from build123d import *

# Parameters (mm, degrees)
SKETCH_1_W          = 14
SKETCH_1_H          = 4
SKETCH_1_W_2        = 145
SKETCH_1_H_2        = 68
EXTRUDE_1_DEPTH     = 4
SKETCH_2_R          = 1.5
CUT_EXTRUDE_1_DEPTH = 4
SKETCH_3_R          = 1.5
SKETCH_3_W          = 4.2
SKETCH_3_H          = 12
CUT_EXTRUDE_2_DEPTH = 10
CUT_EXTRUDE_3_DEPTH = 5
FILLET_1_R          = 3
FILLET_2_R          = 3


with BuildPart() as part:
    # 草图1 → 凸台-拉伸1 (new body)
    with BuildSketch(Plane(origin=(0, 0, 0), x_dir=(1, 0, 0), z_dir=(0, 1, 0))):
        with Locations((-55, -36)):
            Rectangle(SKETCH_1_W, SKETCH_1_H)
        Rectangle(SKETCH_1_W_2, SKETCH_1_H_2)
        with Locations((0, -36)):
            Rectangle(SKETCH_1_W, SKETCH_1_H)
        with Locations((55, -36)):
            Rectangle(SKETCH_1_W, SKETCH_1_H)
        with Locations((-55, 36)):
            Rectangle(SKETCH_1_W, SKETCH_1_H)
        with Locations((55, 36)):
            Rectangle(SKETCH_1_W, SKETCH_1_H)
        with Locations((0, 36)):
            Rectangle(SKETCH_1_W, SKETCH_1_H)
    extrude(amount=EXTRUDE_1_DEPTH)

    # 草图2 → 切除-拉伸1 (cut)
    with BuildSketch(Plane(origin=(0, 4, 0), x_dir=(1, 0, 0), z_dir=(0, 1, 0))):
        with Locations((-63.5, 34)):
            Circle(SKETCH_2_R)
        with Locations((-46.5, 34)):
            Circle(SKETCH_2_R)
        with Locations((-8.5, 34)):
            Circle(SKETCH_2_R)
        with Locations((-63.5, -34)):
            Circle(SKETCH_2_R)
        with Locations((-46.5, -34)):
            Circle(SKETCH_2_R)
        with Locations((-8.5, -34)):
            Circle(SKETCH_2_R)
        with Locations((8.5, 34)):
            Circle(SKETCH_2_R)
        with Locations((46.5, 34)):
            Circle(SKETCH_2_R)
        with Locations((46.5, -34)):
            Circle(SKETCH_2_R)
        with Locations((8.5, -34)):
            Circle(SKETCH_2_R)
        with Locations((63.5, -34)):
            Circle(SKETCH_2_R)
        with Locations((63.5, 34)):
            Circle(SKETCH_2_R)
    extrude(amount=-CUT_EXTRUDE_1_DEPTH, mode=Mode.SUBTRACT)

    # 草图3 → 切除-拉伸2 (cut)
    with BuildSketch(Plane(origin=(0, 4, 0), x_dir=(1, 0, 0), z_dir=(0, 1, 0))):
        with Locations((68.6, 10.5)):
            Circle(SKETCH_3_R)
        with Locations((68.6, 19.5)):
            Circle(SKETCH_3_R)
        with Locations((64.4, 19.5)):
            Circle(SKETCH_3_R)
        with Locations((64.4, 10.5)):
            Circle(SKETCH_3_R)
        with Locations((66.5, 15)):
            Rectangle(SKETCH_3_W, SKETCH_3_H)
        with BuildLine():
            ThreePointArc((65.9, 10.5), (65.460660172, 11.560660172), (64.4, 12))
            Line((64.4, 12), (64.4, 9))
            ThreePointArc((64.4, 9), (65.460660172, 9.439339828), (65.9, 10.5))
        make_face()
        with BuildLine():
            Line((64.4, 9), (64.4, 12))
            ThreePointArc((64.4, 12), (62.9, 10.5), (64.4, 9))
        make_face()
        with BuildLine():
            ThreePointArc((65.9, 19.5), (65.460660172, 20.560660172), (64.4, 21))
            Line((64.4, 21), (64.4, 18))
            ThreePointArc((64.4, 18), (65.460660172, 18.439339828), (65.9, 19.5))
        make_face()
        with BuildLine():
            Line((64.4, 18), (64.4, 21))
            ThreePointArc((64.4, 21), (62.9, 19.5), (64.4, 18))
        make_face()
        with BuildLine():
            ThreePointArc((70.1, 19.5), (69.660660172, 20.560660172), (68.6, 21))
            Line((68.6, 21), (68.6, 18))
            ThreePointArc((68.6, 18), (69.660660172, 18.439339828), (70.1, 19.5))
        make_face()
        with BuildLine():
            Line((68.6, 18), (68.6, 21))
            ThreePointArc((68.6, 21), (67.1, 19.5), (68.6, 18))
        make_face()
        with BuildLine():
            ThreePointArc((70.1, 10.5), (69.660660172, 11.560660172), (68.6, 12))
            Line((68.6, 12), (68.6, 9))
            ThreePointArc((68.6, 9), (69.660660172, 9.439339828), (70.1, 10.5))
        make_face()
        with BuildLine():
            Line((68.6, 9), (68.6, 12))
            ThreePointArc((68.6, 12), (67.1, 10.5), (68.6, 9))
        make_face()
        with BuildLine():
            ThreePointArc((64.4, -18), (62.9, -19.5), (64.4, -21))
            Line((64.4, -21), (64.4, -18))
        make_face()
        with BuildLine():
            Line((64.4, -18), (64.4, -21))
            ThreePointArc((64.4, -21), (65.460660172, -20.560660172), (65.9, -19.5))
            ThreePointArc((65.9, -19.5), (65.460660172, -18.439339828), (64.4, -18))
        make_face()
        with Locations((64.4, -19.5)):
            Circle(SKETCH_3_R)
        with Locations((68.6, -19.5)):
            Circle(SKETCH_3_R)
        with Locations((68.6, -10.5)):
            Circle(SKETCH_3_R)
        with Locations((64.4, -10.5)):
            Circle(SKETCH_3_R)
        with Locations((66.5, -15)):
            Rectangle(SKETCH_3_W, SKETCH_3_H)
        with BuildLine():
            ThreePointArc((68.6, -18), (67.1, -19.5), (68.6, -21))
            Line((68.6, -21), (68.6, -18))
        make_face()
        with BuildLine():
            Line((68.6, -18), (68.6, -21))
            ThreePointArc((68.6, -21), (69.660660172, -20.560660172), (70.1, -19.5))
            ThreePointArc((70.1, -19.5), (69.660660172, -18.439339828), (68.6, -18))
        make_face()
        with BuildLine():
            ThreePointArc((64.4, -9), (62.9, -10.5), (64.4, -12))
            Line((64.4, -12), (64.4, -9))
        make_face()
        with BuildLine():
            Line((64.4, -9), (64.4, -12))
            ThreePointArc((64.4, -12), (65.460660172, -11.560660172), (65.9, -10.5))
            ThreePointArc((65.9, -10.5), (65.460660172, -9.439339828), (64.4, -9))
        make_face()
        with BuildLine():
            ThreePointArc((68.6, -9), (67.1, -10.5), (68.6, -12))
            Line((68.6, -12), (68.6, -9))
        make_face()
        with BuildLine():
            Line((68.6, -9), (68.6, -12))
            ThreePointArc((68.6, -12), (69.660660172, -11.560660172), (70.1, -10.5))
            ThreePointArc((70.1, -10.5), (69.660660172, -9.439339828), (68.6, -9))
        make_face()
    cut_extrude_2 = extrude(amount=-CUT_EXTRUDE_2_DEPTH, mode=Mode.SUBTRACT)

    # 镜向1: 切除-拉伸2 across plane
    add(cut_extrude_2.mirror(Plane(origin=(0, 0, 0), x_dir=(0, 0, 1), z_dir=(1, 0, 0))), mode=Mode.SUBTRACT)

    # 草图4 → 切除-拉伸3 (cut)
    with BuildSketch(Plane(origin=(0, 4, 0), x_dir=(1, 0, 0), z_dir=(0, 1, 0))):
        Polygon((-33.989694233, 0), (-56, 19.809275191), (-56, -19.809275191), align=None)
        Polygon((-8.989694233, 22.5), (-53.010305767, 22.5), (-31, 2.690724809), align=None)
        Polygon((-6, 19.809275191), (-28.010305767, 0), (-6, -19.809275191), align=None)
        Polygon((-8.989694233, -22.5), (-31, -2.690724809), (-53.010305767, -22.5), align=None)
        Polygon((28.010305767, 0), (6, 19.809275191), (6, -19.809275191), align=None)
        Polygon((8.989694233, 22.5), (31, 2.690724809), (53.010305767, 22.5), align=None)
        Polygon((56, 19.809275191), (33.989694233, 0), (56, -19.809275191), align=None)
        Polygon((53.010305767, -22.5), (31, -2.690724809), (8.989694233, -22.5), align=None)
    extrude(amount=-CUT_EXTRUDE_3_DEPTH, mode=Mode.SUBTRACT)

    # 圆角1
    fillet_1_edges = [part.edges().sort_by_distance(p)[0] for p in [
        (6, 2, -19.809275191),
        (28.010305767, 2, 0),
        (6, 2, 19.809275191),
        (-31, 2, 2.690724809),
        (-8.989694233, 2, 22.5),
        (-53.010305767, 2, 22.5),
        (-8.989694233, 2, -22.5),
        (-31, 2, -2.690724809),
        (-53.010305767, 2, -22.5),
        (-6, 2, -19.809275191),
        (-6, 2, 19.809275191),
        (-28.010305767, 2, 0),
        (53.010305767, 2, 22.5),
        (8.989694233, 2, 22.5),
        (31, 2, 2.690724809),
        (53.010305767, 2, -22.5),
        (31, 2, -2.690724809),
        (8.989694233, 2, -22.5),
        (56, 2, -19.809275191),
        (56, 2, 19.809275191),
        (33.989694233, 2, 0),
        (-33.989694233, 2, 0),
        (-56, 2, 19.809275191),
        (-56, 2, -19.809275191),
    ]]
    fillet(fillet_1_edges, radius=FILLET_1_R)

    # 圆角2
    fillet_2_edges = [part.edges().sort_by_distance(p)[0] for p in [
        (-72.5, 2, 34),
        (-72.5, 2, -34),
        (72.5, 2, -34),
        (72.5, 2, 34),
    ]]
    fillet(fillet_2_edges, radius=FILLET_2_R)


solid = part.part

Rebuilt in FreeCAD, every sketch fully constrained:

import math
import FreeCAD as App
import Part
import Sketcher

V = App.Vector


def edges_at(feature, points):
    """Names of the edges that pass closest to the given points."""
    edges = feature.Shape.Edges
    near = lambda p: min(range(len(edges)), key=lambda i: edges[i].distToShape(Part.Vertex(*p))[0])
    return sorted({f"Edge{near(p) + 1}" for p in points})


def add_polygon(sketch, points):
    """Adds a closed chain of lines whose ends are joined by coincident constraints."""
    first, n = sketch.GeometryCount, len(points)
    for a, b in zip(points, points[1:] + points[:1]):
        sketch.addGeometry(Part.LineSegment(App.Vector(*a, 0), App.Vector(*b, 0)), False)
    for i in range(n):
        sketch.addConstraint(Sketcher.Constraint("Coincident", first + i, 2, first + (i + 1) % n, 1))

doc = App.newDocument("Part")
body = doc.addObject("PartDesign::Body", "Body")

sketch1 = body.newObject("Sketcher::SketchObject", "Sketch")
sketch1.AttachmentSupport = (doc.getObject("XZ_Plane"), [""])
sketch1.MapMode = "FlatFace"
add_polygon(sketch1, [(-62, 34), (-62, 38), (-48, 38), (-48, 34), (-7, 34), (-7, 38), (7, 38), (7, 34), (48, 34), (48, 38), (62, 38), (62, 34), (72.5, 34), (72.5, -34), (62, -34), (62, -38), (48, -38), (48, -34), (7, -34), (7, -38), (-7, -38), (-7, -34), (-48, -34), (-48, -38), (-62, -38), (-62, -34), (-72.5, -34), (-72.5, 34)])
sketch1.addConstraint([
    Sketcher.Constraint("Vertical", 0),
    Sketcher.Constraint("Horizontal", 1),
    Sketcher.Constraint("Vertical", 2),
    Sketcher.Constraint("Horizontal", 3),
    Sketcher.Constraint("Vertical", 4),
    Sketcher.Constraint("Horizontal", 5),
    Sketcher.Constraint("Vertical", 6),
    Sketcher.Constraint("Horizontal", 7),
    Sketcher.Constraint("Vertical", 8),
    Sketcher.Constraint("Horizontal", 9),
    Sketcher.Constraint("Vertical", 10),
    Sketcher.Constraint("Horizontal", 11),
    Sketcher.Constraint("Vertical", 12),
    Sketcher.Constraint("Horizontal", 13),
    Sketcher.Constraint("Vertical", 14),
    Sketcher.Constraint("Horizontal", 15),
    Sketcher.Constraint("Vertical", 16),
    Sketcher.Constraint("Horizontal", 17),
    Sketcher.Constraint("Vertical", 18),
    Sketcher.Constraint("Horizontal", 19),
    Sketcher.Constraint("Vertical", 20),
    Sketcher.Constraint("Horizontal", 21),
    Sketcher.Constraint("Vertical", 22),
    Sketcher.Constraint("Horizontal", 23),
    Sketcher.Constraint("Vertical", 24),
    Sketcher.Constraint("Horizontal", 25),
    Sketcher.Constraint("Vertical", 26),
    Sketcher.Constraint("Horizontal", 27),
    Sketcher.Constraint("Symmetric", 0, 2, 14, 2, -1, 1),
    Sketcher.Constraint("Symmetric", 2, 2, 16, 2, -1, 1),
    Sketcher.Constraint("Symmetric", 4, 2, 18, 2, -1, 1),
    Sketcher.Constraint("Symmetric", 6, 2, 20, 2, -1, 1),
    Sketcher.Constraint("Symmetric", 8, 2, 22, 2, -1, 1),
    Sketcher.Constraint("Symmetric", 10, 2, 24, 2, -1, 1),
    Sketcher.Constraint("Symmetric", 12, 2, 26, 2, -1, 1),
    Sketcher.Constraint("Symmetric", 3, 2, 6, 2, -2),
    Sketcher.Constraint("Symmetric", 1, 2, 8, 2, -2),
    Sketcher.Constraint("Symmetric", 13, 2, 24, 2, -2),
    Sketcher.Constraint("Horizontal", 1, 2, 4, 2),
    Sketcher.Constraint("Horizontal", 7, 2, 10, 2),
    Sketcher.Constraint("Equal", 1, 5),
    Sketcher.Constraint("DistanceX", 1, 1, 1, 2, 14.0),
    Sketcher.Constraint("DistanceX", 3, 1, 3, 2, 41.0),
    Sketcher.Constraint("DistanceY", 0, 1, 0, 2, 4.0),
    Sketcher.Constraint("DistanceY", 12, 2, 12, 1, 68.0),
    Sketcher.Constraint("DistanceX", 11, 1, 11, 2, 10.5),
])
pad1 = body.newObject("PartDesign::Pad", "Pad")
pad1.Profile = sketch1
pad1.Length = 4
pad1.Reversed = True

sketch2 = body.newObject("Sketcher::SketchObject", "Sketch001")
sketch2.AttachmentSupport = (doc.getObject("XZ_Plane"), [""])
sketch2.MapMode = "FlatFace"
sketch2.AttachmentOffset = App.Placement(V(0, 0, -4), App.Rotation())
sketch2.addGeometry([
    Part.Circle(V(-63.5, -34, 0), V(0, 0, 1), 1.5),
    Part.Circle(V(-46.5, -34, 0), V(0, 0, 1), 1.5),
    Part.Circle(V(-8.5, -34, 0), V(0, 0, 1), 1.5),
    Part.Circle(V(-63.5, 34, 0), V(0, 0, 1), 1.5),
    Part.Circle(V(-46.5, 34, 0), V(0, 0, 1), 1.5),
    Part.Circle(V(-8.5, 34, 0), V(0, 0, 1), 1.5),
    Part.Circle(V(8.5, -34, 0), V(0, 0, 1), 1.5),
    Part.Circle(V(46.5, -34, 0), V(0, 0, 1), 1.5),
    Part.Circle(V(46.5, 34, 0), V(0, 0, 1), 1.5),
    Part.Circle(V(8.5, 34, 0), V(0, 0, 1), 1.5),
    Part.Circle(V(63.5, 34, 0), V(0, 0, 1), 1.5),
    Part.Circle(V(63.5, -34, 0), V(0, 0, 1), 1.5),
], False)
sketch2.addConstraint([
    Sketcher.Constraint("Equal", 0, 1),
    Sketcher.Constraint("Equal", 1, 2),
    Sketcher.Constraint("Equal", 2, 3),
    Sketcher.Constraint("Equal", 3, 4),
    Sketcher.Constraint("Equal", 4, 5),
    Sketcher.Constraint("Equal", 5, 6),
    Sketcher.Constraint("Equal", 6, 7),
    Sketcher.Constraint("Equal", 7, 8),
    Sketcher.Constraint("Equal", 8, 9),
    Sketcher.Constraint("Equal", 9, 10),
    Sketcher.Constraint("Equal", 10, 11),
    Sketcher.Constraint("Symmetric", 5, 3, 6, 3, -1, 1),
    Sketcher.Constraint("Symmetric", 4, 3, 7, 3, -1, 1),
    Sketcher.Constraint("Symmetric", 1, 3, 8, 3, -1, 1),
    Sketcher.Constraint("Symmetric", 2, 3, 9, 3, -1, 1),
    Sketcher.Constraint("Symmetric", 0, 3, 10, 3, -1, 1),
    Sketcher.Constraint("Symmetric", 3, 3, 11, 3, -1, 1),
    Sketcher.Constraint("Symmetric", 2, 3, 6, 3, -2),
    Sketcher.Constraint("Symmetric", 1, 3, 7, 3, -2),
    Sketcher.Constraint("Symmetric", 3, 3, 10, 3, -2),
    Sketcher.Constraint("Horizontal", 0, 3, 1, 3),
    Sketcher.Constraint("Horizontal", 1, 3, 2, 3),
    Sketcher.Constraint("Diameter", 0, 3.0),
    Sketcher.Constraint("DistanceY", 0, 3, -1, 1, 34.0),
    Sketcher.Constraint("DistanceX", 0, 3, 1, 3, 17.0),
    Sketcher.Constraint("DistanceX", 1, 3, 2, 3, 38.0),
    Sketcher.Constraint("DistanceX", 2, 3, 6, 3, 17.0),
])
pocket1 = body.newObject("PartDesign::Pocket", "Pocket")
pocket1.Profile = sketch2
pocket1.Length = 4
pocket1.Reversed = True

sketch3 = body.newObject("Sketcher::SketchObject", "Sketch002")
sketch3.AttachmentSupport = (doc.getObject("XZ_Plane"), [""])
sketch3.MapMode = "FlatFace"
sketch3.AttachmentOffset = App.Placement(V(0, 0, -4), App.Rotation())
sketch3.addGeometry([
    Part.LineSegment(V(64.4, -18, 0), V(64.4, -12, 0)),
    Part.ArcOfCircle(Part.Circle(V(64.4, -10.5, 0), V(0, 0, 1), 1.5), math.radians(90), math.radians(270)),
    Part.LineSegment(V(64.4, -9, 0), V(68.6, -9, 0)),
    Part.ArcOfCircle(Part.Circle(V(68.6, -10.5, 0), V(0, 0, 1), 1.5), math.radians(-90), math.radians(90)),
    Part.LineSegment(V(68.6, -12, 0), V(68.6, -18, 0)),
    Part.ArcOfCircle(Part.Circle(V(68.6, -19.5, 0), V(0, 0, 1), 1.5), math.radians(-90), math.radians(90)),
    Part.LineSegment(V(68.6, -21, 0), V(64.4, -21, 0)),
    Part.ArcOfCircle(Part.Circle(V(64.4, -19.5, 0), V(0, 0, 1), 1.5), math.radians(90), math.radians(270)),
    Part.LineSegment(V(64.4, 12, 0), V(64.4, 18, 0)),
    Part.ArcOfCircle(Part.Circle(V(64.4, 19.5, 0), V(0, 0, 1), 1.5), math.radians(90), math.radians(270)),
    Part.LineSegment(V(64.4, 21, 0), V(68.6, 21, 0)),
    Part.ArcOfCircle(Part.Circle(V(68.6, 19.5, 0), V(0, 0, 1), 1.5), math.radians(-90), math.radians(90)),
    Part.LineSegment(V(68.6, 18, 0), V(68.6, 12, 0)),
    Part.ArcOfCircle(Part.Circle(V(68.6, 10.5, 0), V(0, 0, 1), 1.5), math.radians(-90), math.radians(90)),
    Part.LineSegment(V(68.6, 9, 0), V(64.4, 9, 0)),
    Part.ArcOfCircle(Part.Circle(V(64.4, 10.5, 0), V(0, 0, 1), 1.5), math.radians(90), math.radians(270)),
], False)
sketch3.addConstraint([
    Sketcher.Constraint("Coincident", 0, 2, 1, 2),
    Sketcher.Constraint("Tangent", 1, 1, 2, 1),
    Sketcher.Constraint("Tangent", 2, 2, 3, 2),
    Sketcher.Constraint("Coincident", 3, 1, 4, 1),
    Sketcher.Constraint("Coincident", 4, 2, 5, 2),
    Sketcher.Constraint("Tangent", 5, 1, 6, 1),
    Sketcher.Constraint("Tangent", 6, 2, 7, 2),
    Sketcher.Constraint("Coincident", 7, 1, 0, 1),
    Sketcher.Constraint("Coincident", 8, 2, 9, 2),
    Sketcher.Constraint("Tangent", 9, 1, 10, 1),
    Sketcher.Constraint("Tangent", 10, 2, 11, 2),
    Sketcher.Constraint("Coincident", 11, 1, 12, 1),
    Sketcher.Constraint("Coincident", 12, 2, 13, 2),
    Sketcher.Constraint("Tangent", 13, 1, 14, 1),
    Sketcher.Constraint("Tangent", 14, 2, 15, 2),
    Sketcher.Constraint("Coincident", 15, 1, 8, 1),
    Sketcher.Constraint("Vertical", 0),
    Sketcher.Constraint("Horizontal", 2),
    Sketcher.Constraint("Vertical", 4),
    Sketcher.Constraint("Horizontal", 6),
    Sketcher.Constraint("Vertical", 8),
    Sketcher.Constraint("Horizontal", 10),
    Sketcher.Constraint("Vertical", 12),
    Sketcher.Constraint("Horizontal", 14),
    Sketcher.Constraint("Equal", 1, 3),
    Sketcher.Constraint("Equal", 3, 5),
    Sketcher.Constraint("Equal", 5, 7),
    Sketcher.Constraint("Equal", 7, 9),
    Sketcher.Constraint("Equal", 9, 11),
    Sketcher.Constraint("Equal", 11, 13),
    Sketcher.Constraint("Equal", 13, 15),
    Sketcher.Constraint("Symmetric", 7, 3, 9, 3, -1),
    Sketcher.Constraint("Symmetric", 3, 3, 13, 3, -1),
    Sketcher.Constraint("Vertical", 3, 3, 5, 3),
    Sketcher.Constraint("Vertical", 1, 3, 7, 3),
    Sketcher.Constraint("Vertical", 5, 3, 11, 3),
    Sketcher.Constraint("Vertical", 9, 3, 15, 3),
    Sketcher.Constraint("Vertical", 15, 3, 0, 2),
    Sketcher.Constraint("Vertical", 2, 2, 3, 1),
    Sketcher.Constraint("Vertical", 7, 1, 8, 2),
    Sketcher.Constraint("Vertical", 10, 2, 11, 1),
    Sketcher.Constraint("Radius", 1, 1.5),
    Sketcher.Constraint("DistanceY", 0, 1, 0, 2, 6.0),
    Sketcher.Constraint("DistanceX", 2, 1, 2, 2, 4.2),
    Sketcher.Constraint("DistanceY", 0, 2, -1, 1, 12.0),
    Sketcher.Constraint("DistanceX", -1, 1, 1, 3, 64.4),
])
pocket2 = body.newObject("PartDesign::Pocket", "Pocket001")
pocket2.Profile = sketch3
pocket2.Length = 10
pocket2.Reversed = True
doc.recompute()

mirrored = body.newObject("PartDesign::Mirrored", "Mirrored")
mirrored.Originals = [pocket2]
mirrored.MirrorPlane = (doc.getObject("YZ_Plane"), [""])
body.Tip = mirrored

sketch4 = body.newObject("Sketcher::SketchObject", "Sketch003")
sketch4.AttachmentSupport = (doc.getObject("XZ_Plane"), [""])
sketch4.MapMode = "FlatFace"
sketch4.AttachmentOffset = App.Placement(V(0, 0, -4), App.Rotation())
add_polygon(sketch4, [(-34, 0), (-56, -20), (-56, 20)])
add_polygon(sketch4, [(-9, -22), (-53, -22), (-31, -3)])
add_polygon(sketch4, [(-6, -20), (-28, 0), (-6, 20)])
add_polygon(sketch4, [(-9, 22), (-31, 3), (-53, 22)])
add_polygon(sketch4, [(28, 0), (6, -20), (6, 20)])
add_polygon(sketch4, [(9, -22), (31, -3), (53, -22)])
add_polygon(sketch4, [(56, -20), (34, 0), (56, 20)])
add_polygon(sketch4, [(53, 22), (31, 3), (9, 22)])
sketch4.addConstraint([
    Sketcher.Constraint("Vertical", 1),
    Sketcher.Constraint("Horizontal", 3),
    Sketcher.Constraint("Vertical", 8),
    Sketcher.Constraint("Horizontal", 11),
    Sketcher.Constraint("Vertical", 13),
    Sketcher.Constraint("Horizontal", 17),
    Sketcher.Constraint("Vertical", 20),
    Sketcher.Constraint("Horizontal", 23),
    Sketcher.Constraint("Symmetric", 7, 2, 12, 2, -1, 1),
    Sketcher.Constraint("Symmetric", 6, 2, 14, 2, -1, 1),
    Sketcher.Constraint("Symmetric", 9, 2, 15, 2, -1, 1),
    Sketcher.Constraint("Symmetric", 10, 2, 16, 2, -1, 1),
    Sketcher.Constraint("Symmetric", 2, 2, 18, 2, -1, 1),
    Sketcher.Constraint("Symmetric", 0, 2, 19, 2, -1, 1),
    Sketcher.Constraint("Symmetric", 4, 2, 21, 2, -1, 1),
    Sketcher.Constraint("Symmetric", 5, 2, 22, 2, -1, 1),
    Sketcher.Constraint("Symmetric", 4, 2, 15, 2, -2),
    Sketcher.Constraint("Symmetric", 3, 2, 16, 2, -2),
    Sketcher.Constraint("PointOnObject", 2, 2, -1),
    Sketcher.Constraint("PointOnObject", 6, 2, -1),
    Sketcher.Constraint("Parallel", 0, 4),
    Sketcher.Constraint("Parallel", 2, 5),
    Sketcher.Constraint("Parallel", 5, 6),
    Sketcher.Constraint("Parallel", 4, 7),
    Sketcher.Constraint("Parallel", 7, 9),
    Sketcher.Constraint("Parallel", 6, 10),
    Sketcher.Constraint("Parallel", 10, 14),
    Sketcher.Constraint("Parallel", 12, 15),
    Sketcher.Constraint("Parallel", 16, 18),
    Sketcher.Constraint("Parallel", 19, 21),
    Sketcher.Constraint("Horizontal", 1, 2, 7, 2),
    Sketcher.Constraint("Equal", 2, 4),
    Sketcher.Constraint("DistanceX", 0, 2, -1, 1, 56.0),
    Sketcher.Constraint("DistanceX", 4, 2, -1, 1, 31.0),
    Sketcher.Constraint("DistanceX", 7, 2, -1, 1, 6.0),
    Sketcher.Constraint("DistanceY", 3, 2, -1, 1, 22.5),
    Sketcher.Constraint("DistanceX", 3, 2, 3, 1, 44.020612),
    Sketcher.Constraint("DistanceY", 1, 1, 1, 2, 39.61855),
])
pocket3 = body.newObject("PartDesign::Pocket", "Pocket002")
pocket3.Profile = sketch4
pocket3.Length = 5
pocket3.Reversed = True
doc.recompute()

fillet = body.newObject("PartDesign::Fillet", "Fillet")
fillet.Base = (pocket3, edges_at(pocket3, [
    (6, 2, -19.809),
    (28.01, 2, 0),
    (6, 2, 19.809),
    (-31, 2, 2.691),
    (-8.99, 2, 22.5),
    (-53.01, 2, 22.5),
    (-8.99, 2, -22.5),
    (-31, 2, -2.691),
    (-53.01, 2, -22.5),
    (-6, 2, -19.809),
    (-6, 2, 19.809),
    (-28.01, 2, 0),
    (53.01, 2, 22.5),
    (8.99, 2, 22.5),
    (31, 2, 2.691),
    (53.01, 2, -22.5),
    (31, 2, -2.691),
    (8.99, 2, -22.5),
    (56, 2, -19.809),
    (56, 2, 19.809),
    (33.99, 2, 0),
    (-33.99, 2, 0),
    (-56, 2, 19.809),
    (-56, 2, -19.809),
]))
fillet.Radius = 3
doc.recompute()

fillet2 = body.newObject("PartDesign::Fillet", "Fillet001")
fillet2.Base = (fillet, edges_at(fillet, [
    (-72.5, 2, 34),
    (-72.5, 2, -34),
    (72.5, 2, -34),
    (72.5, 2, 34),
]))
fillet2.Radius = 3

doc.recompute()
